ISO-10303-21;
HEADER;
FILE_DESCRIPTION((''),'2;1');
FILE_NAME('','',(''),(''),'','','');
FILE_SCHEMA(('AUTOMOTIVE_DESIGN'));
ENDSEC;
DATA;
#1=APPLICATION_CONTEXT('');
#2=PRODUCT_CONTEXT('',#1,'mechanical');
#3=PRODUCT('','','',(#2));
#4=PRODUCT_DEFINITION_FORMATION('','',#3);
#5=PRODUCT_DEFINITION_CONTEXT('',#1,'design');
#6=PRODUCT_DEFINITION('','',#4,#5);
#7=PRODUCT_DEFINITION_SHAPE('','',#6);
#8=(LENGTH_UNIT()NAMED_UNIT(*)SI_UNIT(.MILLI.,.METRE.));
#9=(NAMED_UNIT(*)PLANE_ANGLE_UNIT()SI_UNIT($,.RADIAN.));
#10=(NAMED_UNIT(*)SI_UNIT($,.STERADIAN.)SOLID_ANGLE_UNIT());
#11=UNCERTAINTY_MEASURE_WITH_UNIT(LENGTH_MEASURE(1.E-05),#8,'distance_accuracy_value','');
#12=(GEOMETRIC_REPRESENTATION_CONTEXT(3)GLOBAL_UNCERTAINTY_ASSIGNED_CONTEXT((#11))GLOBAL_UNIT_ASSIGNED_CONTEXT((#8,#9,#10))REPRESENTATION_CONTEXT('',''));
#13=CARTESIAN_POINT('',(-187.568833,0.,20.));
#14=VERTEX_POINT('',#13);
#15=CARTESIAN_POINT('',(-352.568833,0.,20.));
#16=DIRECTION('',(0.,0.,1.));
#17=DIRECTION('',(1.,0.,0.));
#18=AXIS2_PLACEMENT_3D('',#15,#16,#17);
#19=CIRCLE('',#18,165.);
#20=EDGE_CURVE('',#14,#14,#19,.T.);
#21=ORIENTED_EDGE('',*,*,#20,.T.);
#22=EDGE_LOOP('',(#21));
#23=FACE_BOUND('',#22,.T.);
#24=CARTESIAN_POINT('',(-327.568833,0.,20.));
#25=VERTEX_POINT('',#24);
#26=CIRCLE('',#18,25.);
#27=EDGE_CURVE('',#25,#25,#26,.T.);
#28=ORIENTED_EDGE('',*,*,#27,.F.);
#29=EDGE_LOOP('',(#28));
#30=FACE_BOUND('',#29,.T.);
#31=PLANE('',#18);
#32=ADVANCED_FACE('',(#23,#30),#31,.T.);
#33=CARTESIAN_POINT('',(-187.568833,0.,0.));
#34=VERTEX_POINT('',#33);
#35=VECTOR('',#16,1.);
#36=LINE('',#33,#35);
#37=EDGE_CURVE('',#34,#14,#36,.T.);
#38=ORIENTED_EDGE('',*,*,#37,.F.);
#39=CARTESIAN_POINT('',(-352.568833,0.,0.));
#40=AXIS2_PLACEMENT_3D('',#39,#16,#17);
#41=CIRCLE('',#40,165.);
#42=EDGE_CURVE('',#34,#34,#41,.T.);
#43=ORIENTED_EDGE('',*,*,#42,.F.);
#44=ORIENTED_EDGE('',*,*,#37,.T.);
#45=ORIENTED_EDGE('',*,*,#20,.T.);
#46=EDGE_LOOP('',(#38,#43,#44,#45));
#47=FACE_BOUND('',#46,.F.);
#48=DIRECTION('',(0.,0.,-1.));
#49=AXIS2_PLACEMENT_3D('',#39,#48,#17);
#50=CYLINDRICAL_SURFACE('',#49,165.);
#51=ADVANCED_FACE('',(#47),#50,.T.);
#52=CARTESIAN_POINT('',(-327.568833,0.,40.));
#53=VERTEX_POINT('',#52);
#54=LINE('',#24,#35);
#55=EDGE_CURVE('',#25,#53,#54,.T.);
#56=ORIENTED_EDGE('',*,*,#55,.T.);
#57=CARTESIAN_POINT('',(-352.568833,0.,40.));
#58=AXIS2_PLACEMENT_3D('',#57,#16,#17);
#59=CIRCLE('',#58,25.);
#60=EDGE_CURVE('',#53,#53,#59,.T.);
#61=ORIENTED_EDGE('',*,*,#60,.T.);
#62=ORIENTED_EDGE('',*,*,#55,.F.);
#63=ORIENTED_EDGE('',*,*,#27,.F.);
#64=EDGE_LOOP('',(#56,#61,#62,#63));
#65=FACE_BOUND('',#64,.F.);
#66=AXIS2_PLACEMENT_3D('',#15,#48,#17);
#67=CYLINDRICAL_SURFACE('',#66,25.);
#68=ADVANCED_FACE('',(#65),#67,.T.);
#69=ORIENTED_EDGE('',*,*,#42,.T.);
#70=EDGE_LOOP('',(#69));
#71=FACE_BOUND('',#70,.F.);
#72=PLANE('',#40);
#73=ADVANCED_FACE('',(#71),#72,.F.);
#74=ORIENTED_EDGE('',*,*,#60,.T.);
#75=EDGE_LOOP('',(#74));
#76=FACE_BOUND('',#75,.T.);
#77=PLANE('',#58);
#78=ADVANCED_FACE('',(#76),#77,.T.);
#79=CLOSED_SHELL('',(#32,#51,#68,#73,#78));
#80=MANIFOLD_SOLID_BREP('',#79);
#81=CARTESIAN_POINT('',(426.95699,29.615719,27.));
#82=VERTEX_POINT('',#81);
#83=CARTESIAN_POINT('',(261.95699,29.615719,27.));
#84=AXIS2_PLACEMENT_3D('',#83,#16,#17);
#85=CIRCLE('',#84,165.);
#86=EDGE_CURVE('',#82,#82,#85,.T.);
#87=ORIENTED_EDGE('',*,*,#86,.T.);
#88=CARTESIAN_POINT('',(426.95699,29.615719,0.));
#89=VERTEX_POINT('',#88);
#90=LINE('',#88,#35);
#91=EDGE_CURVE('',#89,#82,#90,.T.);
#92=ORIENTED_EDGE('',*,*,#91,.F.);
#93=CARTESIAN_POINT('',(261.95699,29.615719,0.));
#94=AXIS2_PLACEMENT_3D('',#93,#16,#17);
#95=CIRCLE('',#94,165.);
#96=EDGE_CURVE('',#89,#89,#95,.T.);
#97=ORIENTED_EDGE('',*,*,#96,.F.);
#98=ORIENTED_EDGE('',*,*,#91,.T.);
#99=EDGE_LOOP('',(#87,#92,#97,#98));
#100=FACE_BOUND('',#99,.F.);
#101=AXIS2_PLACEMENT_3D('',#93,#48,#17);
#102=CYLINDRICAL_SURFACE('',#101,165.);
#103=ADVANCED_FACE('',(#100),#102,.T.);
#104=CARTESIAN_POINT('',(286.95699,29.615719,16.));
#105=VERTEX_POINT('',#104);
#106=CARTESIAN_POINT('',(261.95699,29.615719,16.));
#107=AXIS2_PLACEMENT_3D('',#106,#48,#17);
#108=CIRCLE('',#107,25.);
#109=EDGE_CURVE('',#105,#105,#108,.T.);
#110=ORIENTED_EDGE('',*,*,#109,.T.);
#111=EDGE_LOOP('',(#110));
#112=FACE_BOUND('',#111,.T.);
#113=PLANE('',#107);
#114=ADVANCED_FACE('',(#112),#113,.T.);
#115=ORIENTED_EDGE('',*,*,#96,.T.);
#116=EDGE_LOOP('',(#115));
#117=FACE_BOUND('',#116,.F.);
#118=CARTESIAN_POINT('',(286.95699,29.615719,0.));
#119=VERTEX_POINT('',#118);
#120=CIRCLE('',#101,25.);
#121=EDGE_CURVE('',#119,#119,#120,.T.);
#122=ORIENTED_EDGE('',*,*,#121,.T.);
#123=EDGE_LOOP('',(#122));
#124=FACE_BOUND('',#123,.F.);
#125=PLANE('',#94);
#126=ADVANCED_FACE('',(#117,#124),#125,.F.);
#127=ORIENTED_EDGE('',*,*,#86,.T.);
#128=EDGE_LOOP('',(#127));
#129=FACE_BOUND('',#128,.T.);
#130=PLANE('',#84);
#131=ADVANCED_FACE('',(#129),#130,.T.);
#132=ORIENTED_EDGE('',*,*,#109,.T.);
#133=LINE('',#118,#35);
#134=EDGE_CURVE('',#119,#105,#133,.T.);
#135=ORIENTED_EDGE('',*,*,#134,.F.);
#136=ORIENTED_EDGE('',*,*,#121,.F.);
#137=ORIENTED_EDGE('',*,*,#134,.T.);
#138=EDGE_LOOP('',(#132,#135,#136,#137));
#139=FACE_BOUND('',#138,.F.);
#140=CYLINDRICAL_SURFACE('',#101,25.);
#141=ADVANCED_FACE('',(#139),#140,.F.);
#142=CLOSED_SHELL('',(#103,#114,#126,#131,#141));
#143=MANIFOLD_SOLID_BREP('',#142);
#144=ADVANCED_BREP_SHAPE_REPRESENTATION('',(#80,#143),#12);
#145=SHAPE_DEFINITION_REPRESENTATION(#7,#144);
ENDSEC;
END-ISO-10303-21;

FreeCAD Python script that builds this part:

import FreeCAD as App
import Part
import Sketcher

V = App.Vector

doc = App.newDocument("Part")
body = doc.addObject("PartDesign::Body", "Body")

# Sketch on XY plane
sketch1 = body.newObject("Sketcher::SketchObject", "Sketch")
sketch1.AttachmentSupport = (doc.getObject("XY_Plane"), [""])
sketch1.MapMode = "FlatFace"
sketch1.addGeometry(Part.Circle(V(-353, 0, 0), V(0, 0, 1), 165), False)
sketch1.addConstraint([
    Sketcher.Constraint("PointOnObject", 0, 3, -1),
    Sketcher.Constraint("Diameter", 0, 330.0),
    Sketcher.Constraint("DistanceX", 0, 3, -1, 1, 352.568833),
])
pad1 = body.newObject("PartDesign::Pad", "Pad")
pad1.Profile = sketch1
pad1.Length = 20

# Sketch on XY plane
sketch2 = body.newObject("Sketcher::SketchObject", "Sketch001")
sketch2.AttachmentSupport = (doc.getObject("XY_Plane"), [""])
sketch2.MapMode = "FlatFace"
sketch2.AttachmentOffset = App.Placement(V(0, 0, 20), App.Rotation())
sketch2.addGeometry(Part.Circle(V(-353, 0, 0), V(0, 0, 1), 25), False)
sketch2.addConstraint([
    Sketcher.Constraint("PointOnObject", 0, 3, -1),
    Sketcher.Constraint("Diameter", 0, 50.0),
    Sketcher.Constraint("DistanceX", 0, 3, -1, 1, 352.568833),
])
pad2 = body.newObject("PartDesign::Pad", "Pad001")
pad2.Profile = sketch2
pad2.Length = 20
body2 = doc.addObject("PartDesign::Body", "Body001")

# Sketch on XY plane
sketch3 = body2.newObject("Sketcher::SketchObject", "Sketch002")
sketch3.AttachmentSupport = (doc.getObject("XY_Plane001"), [""])
sketch3.MapMode = "FlatFace"
sketch3.addGeometry(Part.Circle(V(262, 30, 0), V(0, 0, 1), 165), False)
sketch3.addConstraint([
    Sketcher.Constraint("Diameter", 0, 330.0),
    Sketcher.Constraint("DistanceX", -1, 1, 0, 3, 261.95699),
    Sketcher.Constraint("DistanceY", -1, 1, 0, 3, 29.615719),
])
pad3 = body2.newObject("PartDesign::Pad", "Pad002")
pad3.Profile = sketch3
pad3.Length = 27

# Sketch on XY plane
sketch4 = body2.newObject("Sketcher::SketchObject", "Sketch003")
sketch4.AttachmentSupport = (doc.getObject("XY_Plane001"), [""])
sketch4.MapMode = "FlatFace"
sketch4.addGeometry(Part.Circle(V(262, 30, 0), V(0, 0, 1), 25), False)
sketch4.addConstraint([
    Sketcher.Constraint("Diameter", 0, 50.0),
    Sketcher.Constraint("DistanceX", -1, 1, 0, 3, 261.95699),
    Sketcher.Constraint("DistanceY", -1, 1, 0, 3, 29.615719),
])
pocket1 = body2.newObject("PartDesign::Pocket", "Pocket")
pocket1.Profile = sketch4
pocket1.Length = 16
pocket1.Reversed = True

doc.recompute()
